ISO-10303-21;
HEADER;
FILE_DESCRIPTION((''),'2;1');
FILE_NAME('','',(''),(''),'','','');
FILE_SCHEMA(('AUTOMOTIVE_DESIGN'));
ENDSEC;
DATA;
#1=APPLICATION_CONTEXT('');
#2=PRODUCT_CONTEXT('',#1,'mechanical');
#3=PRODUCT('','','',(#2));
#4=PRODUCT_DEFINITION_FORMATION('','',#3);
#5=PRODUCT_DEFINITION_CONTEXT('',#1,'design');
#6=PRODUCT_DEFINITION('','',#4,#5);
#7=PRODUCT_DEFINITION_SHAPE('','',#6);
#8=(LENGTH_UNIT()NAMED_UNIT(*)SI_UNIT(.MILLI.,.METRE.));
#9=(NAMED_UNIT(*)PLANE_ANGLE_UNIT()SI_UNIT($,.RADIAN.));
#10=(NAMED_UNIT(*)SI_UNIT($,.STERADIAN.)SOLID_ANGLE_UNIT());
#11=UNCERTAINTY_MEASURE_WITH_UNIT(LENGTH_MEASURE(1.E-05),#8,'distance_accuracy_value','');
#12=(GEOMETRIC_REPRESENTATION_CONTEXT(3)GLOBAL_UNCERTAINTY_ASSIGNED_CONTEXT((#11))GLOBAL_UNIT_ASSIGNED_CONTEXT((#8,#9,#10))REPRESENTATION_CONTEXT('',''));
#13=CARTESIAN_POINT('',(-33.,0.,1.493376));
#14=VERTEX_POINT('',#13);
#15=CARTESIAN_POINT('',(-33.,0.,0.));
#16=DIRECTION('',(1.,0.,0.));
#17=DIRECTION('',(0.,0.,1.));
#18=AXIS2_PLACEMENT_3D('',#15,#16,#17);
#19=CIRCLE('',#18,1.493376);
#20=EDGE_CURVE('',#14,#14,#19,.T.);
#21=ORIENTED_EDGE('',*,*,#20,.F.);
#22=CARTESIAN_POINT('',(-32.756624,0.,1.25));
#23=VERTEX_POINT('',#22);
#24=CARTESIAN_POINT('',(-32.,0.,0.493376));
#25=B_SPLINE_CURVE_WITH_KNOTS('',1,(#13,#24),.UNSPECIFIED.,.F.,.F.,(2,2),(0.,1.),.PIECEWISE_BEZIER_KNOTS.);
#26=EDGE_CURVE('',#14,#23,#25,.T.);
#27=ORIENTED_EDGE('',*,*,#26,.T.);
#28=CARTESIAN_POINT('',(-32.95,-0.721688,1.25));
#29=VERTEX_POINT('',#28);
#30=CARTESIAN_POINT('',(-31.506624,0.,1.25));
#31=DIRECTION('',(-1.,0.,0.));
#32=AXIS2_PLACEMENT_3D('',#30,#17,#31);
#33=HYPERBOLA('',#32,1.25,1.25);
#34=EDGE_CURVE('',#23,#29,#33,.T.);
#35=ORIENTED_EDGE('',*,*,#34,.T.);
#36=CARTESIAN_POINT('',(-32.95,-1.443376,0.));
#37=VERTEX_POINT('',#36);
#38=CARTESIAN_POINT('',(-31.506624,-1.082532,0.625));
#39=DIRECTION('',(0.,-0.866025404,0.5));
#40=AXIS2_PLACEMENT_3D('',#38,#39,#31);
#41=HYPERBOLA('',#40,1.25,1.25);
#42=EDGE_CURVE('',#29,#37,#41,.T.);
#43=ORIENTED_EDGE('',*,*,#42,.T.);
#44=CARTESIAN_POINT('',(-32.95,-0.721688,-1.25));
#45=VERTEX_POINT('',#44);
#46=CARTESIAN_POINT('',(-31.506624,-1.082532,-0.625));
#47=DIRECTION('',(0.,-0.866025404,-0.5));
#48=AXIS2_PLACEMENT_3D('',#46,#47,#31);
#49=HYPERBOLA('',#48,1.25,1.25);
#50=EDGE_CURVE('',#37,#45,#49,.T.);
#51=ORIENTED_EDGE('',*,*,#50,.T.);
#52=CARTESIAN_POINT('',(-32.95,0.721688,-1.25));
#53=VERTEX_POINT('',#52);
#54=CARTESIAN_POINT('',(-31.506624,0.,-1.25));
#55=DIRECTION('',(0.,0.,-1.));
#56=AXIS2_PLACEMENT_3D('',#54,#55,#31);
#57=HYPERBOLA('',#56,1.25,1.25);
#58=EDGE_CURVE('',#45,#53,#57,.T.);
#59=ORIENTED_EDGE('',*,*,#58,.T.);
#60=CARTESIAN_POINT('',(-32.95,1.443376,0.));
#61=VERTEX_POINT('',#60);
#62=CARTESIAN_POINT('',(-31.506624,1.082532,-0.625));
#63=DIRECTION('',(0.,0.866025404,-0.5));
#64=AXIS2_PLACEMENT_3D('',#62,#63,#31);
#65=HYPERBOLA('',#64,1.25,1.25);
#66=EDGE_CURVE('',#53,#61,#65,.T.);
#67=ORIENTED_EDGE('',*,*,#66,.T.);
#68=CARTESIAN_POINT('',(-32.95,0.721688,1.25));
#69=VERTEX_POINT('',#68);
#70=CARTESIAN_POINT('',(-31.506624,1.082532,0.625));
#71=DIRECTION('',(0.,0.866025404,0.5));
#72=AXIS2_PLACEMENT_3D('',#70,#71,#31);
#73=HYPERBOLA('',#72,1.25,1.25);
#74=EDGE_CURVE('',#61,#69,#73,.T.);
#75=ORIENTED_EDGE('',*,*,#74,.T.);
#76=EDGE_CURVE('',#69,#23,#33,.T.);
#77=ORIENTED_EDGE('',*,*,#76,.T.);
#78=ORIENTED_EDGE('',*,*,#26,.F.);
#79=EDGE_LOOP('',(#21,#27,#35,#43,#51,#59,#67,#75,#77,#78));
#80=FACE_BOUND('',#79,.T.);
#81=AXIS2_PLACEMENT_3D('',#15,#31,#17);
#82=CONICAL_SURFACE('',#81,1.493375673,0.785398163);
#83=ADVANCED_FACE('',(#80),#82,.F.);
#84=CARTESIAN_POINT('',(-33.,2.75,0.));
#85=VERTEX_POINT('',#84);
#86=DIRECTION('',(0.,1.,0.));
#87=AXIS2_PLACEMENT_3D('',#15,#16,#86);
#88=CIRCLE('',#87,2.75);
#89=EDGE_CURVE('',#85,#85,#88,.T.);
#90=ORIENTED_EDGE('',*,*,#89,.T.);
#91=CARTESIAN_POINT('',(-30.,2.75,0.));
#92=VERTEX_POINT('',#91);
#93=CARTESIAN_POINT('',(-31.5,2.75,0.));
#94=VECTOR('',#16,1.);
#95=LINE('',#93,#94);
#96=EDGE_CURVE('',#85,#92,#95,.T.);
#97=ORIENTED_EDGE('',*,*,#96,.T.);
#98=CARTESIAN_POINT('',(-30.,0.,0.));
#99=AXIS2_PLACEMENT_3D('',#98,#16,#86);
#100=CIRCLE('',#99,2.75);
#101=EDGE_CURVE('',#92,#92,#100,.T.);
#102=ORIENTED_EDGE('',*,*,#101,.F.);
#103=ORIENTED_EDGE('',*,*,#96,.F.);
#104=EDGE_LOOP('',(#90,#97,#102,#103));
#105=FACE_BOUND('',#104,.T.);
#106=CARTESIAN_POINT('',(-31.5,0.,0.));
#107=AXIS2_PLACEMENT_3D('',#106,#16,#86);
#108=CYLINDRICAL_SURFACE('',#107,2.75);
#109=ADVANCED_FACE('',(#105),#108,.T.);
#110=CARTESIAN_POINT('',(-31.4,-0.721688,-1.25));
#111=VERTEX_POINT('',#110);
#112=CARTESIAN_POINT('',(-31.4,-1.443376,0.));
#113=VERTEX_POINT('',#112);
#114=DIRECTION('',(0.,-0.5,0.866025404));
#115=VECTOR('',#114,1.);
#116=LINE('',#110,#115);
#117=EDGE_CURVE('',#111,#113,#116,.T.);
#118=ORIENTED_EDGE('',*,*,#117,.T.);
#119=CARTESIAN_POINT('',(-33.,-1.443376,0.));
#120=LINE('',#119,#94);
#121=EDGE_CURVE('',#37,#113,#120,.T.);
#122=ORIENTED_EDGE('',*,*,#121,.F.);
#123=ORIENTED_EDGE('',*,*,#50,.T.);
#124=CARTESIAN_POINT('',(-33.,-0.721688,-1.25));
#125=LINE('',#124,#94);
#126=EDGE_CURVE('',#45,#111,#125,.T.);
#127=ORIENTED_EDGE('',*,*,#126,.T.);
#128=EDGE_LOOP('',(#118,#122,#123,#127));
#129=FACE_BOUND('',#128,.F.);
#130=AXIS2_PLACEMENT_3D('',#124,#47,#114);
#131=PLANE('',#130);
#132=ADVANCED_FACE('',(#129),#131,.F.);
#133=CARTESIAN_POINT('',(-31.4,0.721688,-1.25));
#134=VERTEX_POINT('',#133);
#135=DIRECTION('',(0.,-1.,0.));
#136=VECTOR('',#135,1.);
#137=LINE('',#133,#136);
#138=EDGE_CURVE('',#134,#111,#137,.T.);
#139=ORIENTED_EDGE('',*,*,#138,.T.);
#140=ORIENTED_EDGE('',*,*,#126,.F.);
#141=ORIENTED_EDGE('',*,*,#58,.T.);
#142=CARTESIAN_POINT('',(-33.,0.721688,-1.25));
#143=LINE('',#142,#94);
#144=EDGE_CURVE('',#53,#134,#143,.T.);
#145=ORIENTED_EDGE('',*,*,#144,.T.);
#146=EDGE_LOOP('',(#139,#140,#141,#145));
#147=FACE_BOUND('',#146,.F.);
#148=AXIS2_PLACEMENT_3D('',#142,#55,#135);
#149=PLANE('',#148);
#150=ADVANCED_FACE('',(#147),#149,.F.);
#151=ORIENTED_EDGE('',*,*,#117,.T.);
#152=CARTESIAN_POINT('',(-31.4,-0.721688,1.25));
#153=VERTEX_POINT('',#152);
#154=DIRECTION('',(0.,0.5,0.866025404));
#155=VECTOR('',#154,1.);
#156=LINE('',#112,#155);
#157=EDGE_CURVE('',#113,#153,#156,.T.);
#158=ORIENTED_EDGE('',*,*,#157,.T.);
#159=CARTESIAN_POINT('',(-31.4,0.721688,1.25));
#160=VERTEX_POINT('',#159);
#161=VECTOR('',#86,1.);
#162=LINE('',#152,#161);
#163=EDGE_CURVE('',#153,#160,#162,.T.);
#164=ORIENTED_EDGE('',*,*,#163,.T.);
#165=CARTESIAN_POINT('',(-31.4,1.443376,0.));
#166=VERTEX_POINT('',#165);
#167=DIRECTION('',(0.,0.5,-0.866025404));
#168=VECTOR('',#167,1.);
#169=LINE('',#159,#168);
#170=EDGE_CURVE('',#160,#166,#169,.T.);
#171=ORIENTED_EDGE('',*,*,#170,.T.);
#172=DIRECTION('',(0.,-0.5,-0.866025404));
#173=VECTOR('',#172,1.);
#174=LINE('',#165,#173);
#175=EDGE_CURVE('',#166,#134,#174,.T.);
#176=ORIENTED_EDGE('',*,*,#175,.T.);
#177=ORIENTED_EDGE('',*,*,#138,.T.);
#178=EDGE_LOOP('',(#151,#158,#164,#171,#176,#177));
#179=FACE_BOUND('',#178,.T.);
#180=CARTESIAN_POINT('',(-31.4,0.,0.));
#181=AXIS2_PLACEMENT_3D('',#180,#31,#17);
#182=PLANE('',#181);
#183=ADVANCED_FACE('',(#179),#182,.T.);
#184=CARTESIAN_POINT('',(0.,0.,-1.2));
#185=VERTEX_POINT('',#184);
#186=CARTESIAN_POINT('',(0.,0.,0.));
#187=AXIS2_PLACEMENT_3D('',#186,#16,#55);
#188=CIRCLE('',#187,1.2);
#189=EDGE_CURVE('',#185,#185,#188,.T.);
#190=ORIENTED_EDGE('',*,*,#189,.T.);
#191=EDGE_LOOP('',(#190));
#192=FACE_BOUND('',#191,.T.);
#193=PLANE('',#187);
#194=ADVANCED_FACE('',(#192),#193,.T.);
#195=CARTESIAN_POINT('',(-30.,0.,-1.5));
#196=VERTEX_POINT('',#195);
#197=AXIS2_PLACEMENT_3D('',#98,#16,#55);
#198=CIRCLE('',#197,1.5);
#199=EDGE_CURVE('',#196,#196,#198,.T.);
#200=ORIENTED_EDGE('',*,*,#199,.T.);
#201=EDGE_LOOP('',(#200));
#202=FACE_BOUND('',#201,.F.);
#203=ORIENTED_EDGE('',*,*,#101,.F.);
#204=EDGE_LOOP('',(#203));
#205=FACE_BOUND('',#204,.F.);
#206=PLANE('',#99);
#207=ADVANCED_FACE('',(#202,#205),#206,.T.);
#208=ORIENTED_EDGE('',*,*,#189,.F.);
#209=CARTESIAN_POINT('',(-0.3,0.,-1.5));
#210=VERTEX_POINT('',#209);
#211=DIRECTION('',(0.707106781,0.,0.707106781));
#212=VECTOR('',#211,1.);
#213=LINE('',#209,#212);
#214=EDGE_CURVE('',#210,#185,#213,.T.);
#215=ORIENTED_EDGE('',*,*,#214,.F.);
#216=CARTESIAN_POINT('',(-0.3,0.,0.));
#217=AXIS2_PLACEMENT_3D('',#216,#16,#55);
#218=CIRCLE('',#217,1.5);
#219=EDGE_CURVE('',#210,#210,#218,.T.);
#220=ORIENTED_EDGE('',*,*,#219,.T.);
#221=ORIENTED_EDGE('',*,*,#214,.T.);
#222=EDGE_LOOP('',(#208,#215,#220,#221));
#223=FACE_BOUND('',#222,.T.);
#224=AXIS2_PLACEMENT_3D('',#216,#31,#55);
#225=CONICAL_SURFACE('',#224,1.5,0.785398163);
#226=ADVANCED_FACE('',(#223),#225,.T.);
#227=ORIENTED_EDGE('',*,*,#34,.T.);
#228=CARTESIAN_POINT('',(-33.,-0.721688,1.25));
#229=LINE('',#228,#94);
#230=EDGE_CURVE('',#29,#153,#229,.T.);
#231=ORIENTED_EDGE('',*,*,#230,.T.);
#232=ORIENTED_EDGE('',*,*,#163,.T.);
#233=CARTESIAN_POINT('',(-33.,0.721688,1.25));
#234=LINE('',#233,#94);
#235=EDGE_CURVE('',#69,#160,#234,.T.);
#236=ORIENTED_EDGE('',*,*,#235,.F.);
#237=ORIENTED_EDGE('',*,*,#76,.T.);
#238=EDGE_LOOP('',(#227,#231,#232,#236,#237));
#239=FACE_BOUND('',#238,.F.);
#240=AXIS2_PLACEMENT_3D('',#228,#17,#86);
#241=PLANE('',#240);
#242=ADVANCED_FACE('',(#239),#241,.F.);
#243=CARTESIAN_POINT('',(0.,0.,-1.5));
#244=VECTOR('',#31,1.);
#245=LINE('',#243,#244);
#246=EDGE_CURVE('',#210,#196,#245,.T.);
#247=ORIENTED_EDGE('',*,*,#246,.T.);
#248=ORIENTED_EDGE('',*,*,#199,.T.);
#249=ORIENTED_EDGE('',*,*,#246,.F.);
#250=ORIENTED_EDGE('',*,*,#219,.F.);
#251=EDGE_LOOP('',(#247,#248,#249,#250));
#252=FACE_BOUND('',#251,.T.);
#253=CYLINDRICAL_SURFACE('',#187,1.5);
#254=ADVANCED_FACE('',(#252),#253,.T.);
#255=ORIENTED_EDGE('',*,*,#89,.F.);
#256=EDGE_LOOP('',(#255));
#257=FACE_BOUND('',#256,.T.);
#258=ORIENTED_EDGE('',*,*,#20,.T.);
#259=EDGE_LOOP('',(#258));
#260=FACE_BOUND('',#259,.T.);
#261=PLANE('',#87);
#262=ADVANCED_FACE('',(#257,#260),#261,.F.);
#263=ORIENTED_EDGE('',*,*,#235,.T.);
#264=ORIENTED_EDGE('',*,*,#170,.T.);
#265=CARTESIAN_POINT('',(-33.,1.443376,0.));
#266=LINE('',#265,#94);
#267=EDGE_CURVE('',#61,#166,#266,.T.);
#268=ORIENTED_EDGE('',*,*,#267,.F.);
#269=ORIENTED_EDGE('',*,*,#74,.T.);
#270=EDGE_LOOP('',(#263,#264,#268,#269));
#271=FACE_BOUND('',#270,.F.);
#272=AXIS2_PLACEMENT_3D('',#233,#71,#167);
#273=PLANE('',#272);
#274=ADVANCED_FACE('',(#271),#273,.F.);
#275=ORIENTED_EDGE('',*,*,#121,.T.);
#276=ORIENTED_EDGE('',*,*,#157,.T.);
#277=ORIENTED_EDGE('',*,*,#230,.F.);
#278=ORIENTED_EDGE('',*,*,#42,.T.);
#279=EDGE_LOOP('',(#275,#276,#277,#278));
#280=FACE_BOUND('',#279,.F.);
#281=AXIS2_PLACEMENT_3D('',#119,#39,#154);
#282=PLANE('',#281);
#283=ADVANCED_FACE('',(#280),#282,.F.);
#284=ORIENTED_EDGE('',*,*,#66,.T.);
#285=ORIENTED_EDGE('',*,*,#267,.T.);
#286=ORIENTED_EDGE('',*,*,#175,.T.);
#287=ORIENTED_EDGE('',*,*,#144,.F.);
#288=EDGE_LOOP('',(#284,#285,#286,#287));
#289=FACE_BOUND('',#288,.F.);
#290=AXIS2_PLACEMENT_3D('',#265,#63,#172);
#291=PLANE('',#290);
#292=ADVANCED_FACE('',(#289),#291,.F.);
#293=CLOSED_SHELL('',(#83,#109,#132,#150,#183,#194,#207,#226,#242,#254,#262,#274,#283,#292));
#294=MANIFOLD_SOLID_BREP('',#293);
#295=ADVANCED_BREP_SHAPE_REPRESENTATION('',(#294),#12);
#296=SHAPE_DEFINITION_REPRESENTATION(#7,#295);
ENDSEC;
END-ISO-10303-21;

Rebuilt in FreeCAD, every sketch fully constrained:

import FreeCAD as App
import Part
import Sketcher
Q = App.Units.Quantity


def edges_at(feature, points):
    """Names of the edges that pass closest to the given points."""
    edges = feature.Shape.Edges
    near = lambda p: min(range(len(edges)), key=lambda i: edges[i].distToShape(Part.Vertex(*p))[0])
    return sorted({f"Edge{near(p) + 1}" for p in points})

doc = App.newDocument("Part")
params = doc.addObject("Spreadsheet::Sheet", "Params")
for row, (alias, value) in enumerate([
    ("sketch1_diameter", "3 mm"),
    ("pad1_length", "30 mm"),
    ("chamfer_size", "0.3 mm"),
    ("sketch2_width", "3 mm"),
    ("sketch2_height", "2.75 mm"),
    ("revolution_angle", "360 deg"),
    ("pocket1_length", "1.6 mm"),
    ("pocket2_length", "1 mm"),
    ("pocket2_taper", "-45 deg"),
], start=1):
    params.set(f"A{row}", alias)
    params.set(f"B{row}", "=" + value)
    params.setAlias(f"B{row}", alias)

body = doc.addObject("PartDesign::Body", "Body")

# Sketch on YZ plane
sketch1 = body.newObject("Sketcher::SketchObject", "Sketch")
sketch1.AttachmentSupport = (doc.getObject("YZ_Plane"), [""])
sketch1.MapMode = "FlatFace"
sketch1.addGeometry(Part.Circle(App.Vector(0, 0, 0), App.Vector(0, 0, 1), 1.5), False)
sketch1.addConstraint([
    Sketcher.Constraint("Coincident", 0, 3, -1, 1),
    Sketcher.Constraint("Diameter", 0, Q("3 mm")),
])
sketch1.setExpression("Constraints[1]", "Params.sketch1_diameter")
pad1 = body.newObject("PartDesign::Pad", "Pad")
pad1.Profile = sketch1
pad1.setExpression("Length", "Params.pad1_length")
pad1.Reversed = True
doc.recompute()

chamfer = body.newObject("PartDesign::Chamfer", "Chamfer")
chamfer.Base = (pad1, edges_at(pad1, [(0, 0, 1.5)]))
chamfer.setExpression("Size", "Params.chamfer_size")

# Sketch on XY plane
sketch2 = body.newObject("Sketcher::SketchObject", "Sketch001")
sketch2.AttachmentSupport = (doc.getObject("XY_Plane"), [""])
sketch2.MapMode = "FlatFace"
sketch2.addGeometry([
    Part.LineSegment(App.Vector(-33, 2.75, 0), App.Vector(-33, 0, 0)),
    Part.LineSegment(App.Vector(-33, 0, 0), App.Vector(-30, 0, 0)),
    Part.LineSegment(App.Vector(-30, 0, 0), App.Vector(-30, 2.75, 0)),
    Part.LineSegment(App.Vector(-30, 2.75, 0), App.Vector(-33, 2.75, 0)),
], False)
sketch2.addConstraint([
    Sketcher.Constraint("Coincident", 0, 2, 1, 1),
    Sketcher.Constraint("Coincident", 1, 2, 2, 1),
    Sketcher.Constraint("Coincident", 2, 2, 3, 1),
    Sketcher.Constraint("Coincident", 3, 2, 0, 1),
    Sketcher.Constraint("Vertical", 0),
    Sketcher.Constraint("Horizontal", 1),
    Sketcher.Constraint("Vertical", 2),
    Sketcher.Constraint("Horizontal", 3),
    Sketcher.Constraint("PointOnObject", 0, 2, -1),
    Sketcher.Constraint("DistanceX", 1, 1, 1, 2, Q("3 mm")),
    Sketcher.Constraint("DistanceX", 0, 2, -1, 1, Q("33 mm")),
    Sketcher.Constraint("DistanceY", 0, 2, 0, 1, Q("2.75 mm")),
])
sketch2.setExpression("Constraints[9]", "Params.sketch2_width")
sketch2.setExpression("Constraints[11]", "Params.sketch2_height")
revolution = body.newObject("PartDesign::Revolution", "Revolution")
revolution.Profile = sketch2
revolution.ReferenceAxis = (sketch2, ["H_Axis"])
revolution.setExpression("Angle", "Params.revolution_angle")

# Sketch on YZ plane
sketch3 = body.newObject("Sketcher::SketchObject", "Sketch002")
sketch3.AttachmentSupport = (doc.getObject("YZ_Plane"), [""])
sketch3.MapMode = "FlatFace"
sketch3.AttachmentOffset = App.Placement(App.Vector(0, 0, -33), App.Rotation())
sketch3.addGeometry([
    Part.LineSegment(App.Vector(1.443376, 0, 0), App.Vector(0.721688, -1.25, 0)),  # 0
    Part.LineSegment(App.Vector(0.721688, -1.25, 0), App.Vector(-0.721688, -1.25, 0)),  # 1
    Part.LineSegment(App.Vector(-0.721688, -1.25, 0), App.Vector(-1.443376, 0, 0)),  # 2
    Part.LineSegment(App.Vector(-1.443376, 0, 0), App.Vector(-0.721688, 1.25, 0)),  # 3
    Part.LineSegment(App.Vector(-0.721688, 1.25, 0), App.Vector(0.721688, 1.25, 0)),  # 4
    Part.LineSegment(App.Vector(0.721688, 1.25, 0), App.Vector(1.443376, 0, 0)),  # 5
], False)
sketch3.addConstraint([
    Sketcher.Constraint("Coincident", 0, 2, 1, 1),
    Sketcher.Constraint("Coincident", 1, 2, 2, 1),
    Sketcher.Constraint("Coincident", 2, 2, 3, 1),
    Sketcher.Constraint("Coincident", 3, 2, 4, 1),
    Sketcher.Constraint("Coincident", 4, 2, 5, 1),
    Sketcher.Constraint("Coincident", 5, 2, 0, 1),
    Sketcher.Constraint("Horizontal", 1),
    Sketcher.Constraint("Horizontal", 4),
    Sketcher.Constraint("Symmetric", 0, 2, 3, 2, -1, 1),
    Sketcher.Constraint("Symmetric", 2, 2, 5, 2, -1, 1),
    Sketcher.Constraint("PointOnObject", 2, 2, -1),
    Sketcher.Constraint("Parallel", 2, 5),
    Sketcher.Constraint("Vertical", 1, 2, 3, 2),
    Sketcher.Constraint("Angle", 0, Q("-120 deg")),
    Sketcher.Constraint("DistanceY", 1, 2, 3, 2, Q("2.5 mm")),
    Sketcher.Constraint("DistanceX", 1, 2, 1, 1, Q("1.443376 mm")),
])
pocket1 = body.newObject("PartDesign::Pocket", "Pocket")
pocket1.Profile = sketch3
pocket1.setExpression("Length", "Params.pocket1_length")
pocket1.Reversed = True

# Sketch on YZ plane
sketch4 = body.newObject("Sketcher::SketchObject", "Sketch003")
sketch4.AttachmentSupport = (doc.getObject("YZ_Plane"), [""])
sketch4.MapMode = "FlatFace"
sketch4.AttachmentOffset = App.Placement(App.Vector(0, 0, -33), App.Rotation())
sketch4.addGeometry(Part.Circle(App.Vector(0, 0, 0), App.Vector(0, 0, 1), 1.493376), False)
sketch4.addConstraint([
    Sketcher.Constraint("Coincident", 0, 3, -1, 1),
    Sketcher.Constraint("Diameter", 0, Q("2.986751 mm")),
])
pocket2 = body.newObject("PartDesign::Pocket", "Pocket001")
pocket2.Profile = sketch4
pocket2.setExpression("Length", "Params.pocket2_length")
pocket2.Reversed = True
pocket2.setExpression("TaperAngle", "Params.pocket2_taper")

doc.recompute()
